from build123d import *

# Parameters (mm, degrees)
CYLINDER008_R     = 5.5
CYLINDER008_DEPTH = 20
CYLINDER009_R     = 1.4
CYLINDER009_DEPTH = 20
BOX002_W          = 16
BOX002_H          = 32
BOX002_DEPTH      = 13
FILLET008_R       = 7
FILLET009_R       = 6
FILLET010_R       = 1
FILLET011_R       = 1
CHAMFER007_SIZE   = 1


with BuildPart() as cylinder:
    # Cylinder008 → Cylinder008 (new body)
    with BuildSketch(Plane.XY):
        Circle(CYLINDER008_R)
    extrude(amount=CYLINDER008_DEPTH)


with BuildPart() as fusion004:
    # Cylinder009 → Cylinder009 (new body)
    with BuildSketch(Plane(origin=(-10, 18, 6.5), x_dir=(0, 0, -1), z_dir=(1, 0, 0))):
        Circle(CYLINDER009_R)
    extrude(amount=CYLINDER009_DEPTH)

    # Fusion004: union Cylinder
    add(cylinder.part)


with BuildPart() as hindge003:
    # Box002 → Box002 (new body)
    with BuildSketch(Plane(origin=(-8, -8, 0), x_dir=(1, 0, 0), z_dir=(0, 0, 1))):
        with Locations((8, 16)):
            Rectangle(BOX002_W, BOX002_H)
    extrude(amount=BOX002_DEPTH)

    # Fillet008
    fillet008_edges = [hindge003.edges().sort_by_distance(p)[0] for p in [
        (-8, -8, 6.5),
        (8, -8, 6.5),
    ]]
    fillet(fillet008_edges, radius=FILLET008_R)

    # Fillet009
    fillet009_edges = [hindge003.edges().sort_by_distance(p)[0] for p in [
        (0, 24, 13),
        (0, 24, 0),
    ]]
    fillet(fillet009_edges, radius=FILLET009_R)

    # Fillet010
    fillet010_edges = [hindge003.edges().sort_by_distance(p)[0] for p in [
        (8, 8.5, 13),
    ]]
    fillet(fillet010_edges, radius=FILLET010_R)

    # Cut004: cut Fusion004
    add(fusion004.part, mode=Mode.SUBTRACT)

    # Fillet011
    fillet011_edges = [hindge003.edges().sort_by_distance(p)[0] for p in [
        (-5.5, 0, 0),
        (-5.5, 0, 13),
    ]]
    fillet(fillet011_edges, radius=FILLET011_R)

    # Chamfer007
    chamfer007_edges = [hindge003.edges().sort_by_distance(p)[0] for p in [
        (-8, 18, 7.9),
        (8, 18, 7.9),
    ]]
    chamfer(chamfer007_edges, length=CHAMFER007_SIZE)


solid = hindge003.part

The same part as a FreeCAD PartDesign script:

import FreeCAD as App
import Part
import Sketcher

V = App.Vector


def edges_at(feature, points):
    """Names of the edges that pass closest to the given points."""
    edges = feature.Shape.Edges
    near = lambda p: min(range(len(edges)), key=lambda i: edges[i].distToShape(Part.Vertex(*p))[0])
    return sorted({f"Edge{near(p) + 1}" for p in points})

doc = App.newDocument("Part")
body = doc.addObject("PartDesign::Body", "Body")

sketch1 = doc.addObject("Sketcher::SketchObject", "Sketch")
body.addObject(sketch1)
sketch1.AttachmentSupport = (doc.XY_Plane, [""])
sketch1.MapMode = "FlatFace"
sketch1.addGeometry(Part.Circle(V(0, 0, 0), V(0, 0, 1), 6), False)
sketch1.addConstraint([
    Sketcher.Constraint("Coincident", 0, 3, -1, 1),
    Sketcher.Constraint("Diameter", 0, 11.0),
])
pad1 = doc.addObject("PartDesign::Pad", "Pad")
body.addObject(pad1)
pad1.Profile = sketch1
pad1.Length = 20
body2 = doc.addObject("PartDesign::Body", "Body001")
body2.AllowCompound = True

sketch2 = doc.addObject("Sketcher::SketchObject", "Sketch001")
body2.addObject(sketch2)
sketch2.AttachmentSupport = (doc.getObject("YZ_Plane001"), [""])
sketch2.MapMode = "FlatFace"
sketch2.AttachmentOffset = App.Placement(V(0, 0, -10), App.Rotation())
sketch2.addGeometry(Part.Circle(V(18, 6.5, 0), V(0, 0, 1), 1.4), False)
sketch2.addConstraint([
    Sketcher.Constraint("Diameter", 0, 2.8),
    Sketcher.Constraint("DistanceX", -1, 1, 0, 3, 18.0),
    Sketcher.Constraint("DistanceY", -1, 1, 0, 3, 6.5),
])
pad2 = doc.addObject("PartDesign::Pad", "Pad001")
body2.addObject(pad2)
pad2.Profile = sketch2
pad2.Length = 20
doc.recompute()

boolean = doc.addObject("PartDesign::Boolean", "Boolean")
body2.addObject(boolean)
boolean.Type = "Fuse"
boolean.addObjects([body])
body3 = doc.addObject("PartDesign::Body", "Body002")

sketch3 = doc.addObject("Sketcher::SketchObject", "Sketch002")
body3.addObject(sketch3)
sketch3.AttachmentSupport = (doc.getObject("XY_Plane002"), [""])
sketch3.MapMode = "FlatFace"
sketch3.addGeometry([
    Part.LineSegment(V(-8, 24, 0), V(-8, -8, 0)),
    Part.LineSegment(V(-8, -8, 0), V(8, -8, 0)),
    Part.LineSegment(V(8, -8, 0), V(8, 24, 0)),
    Part.LineSegment(V(8, 24, 0), V(-8, 24, 0)),
], False)
sketch3.addConstraint([
    Sketcher.Constraint("Coincident", 0, 2, 1, 1),
    Sketcher.Constraint("Coincident", 1, 2, 2, 1),
    Sketcher.Constraint("Coincident", 2, 2, 3, 1),
    Sketcher.Constraint("Coincident", 3, 2, 0, 1),
    Sketcher.Constraint("Vertical", 0),
    Sketcher.Constraint("Horizontal", 1),
    Sketcher.Constraint("Vertical", 2),
    Sketcher.Constraint("Horizontal", 3),
    Sketcher.Constraint("DistanceX", 1, 1, 1, 2, 16.0),
    Sketcher.Constraint("DistanceY", 0, 2, 0, 1, 32.0),
    Sketcher.Constraint("DistanceX", 0, 2, -1, 1, 8.0),
    Sketcher.Constraint("DistanceY", 0, 2, -1, 1, 8.0),
])
pad3 = doc.addObject("PartDesign::Pad", "Pad002")
body3.addObject(pad3)
pad3.Profile = sketch3
pad3.Length = 13
doc.recompute()

fillet = doc.addObject("PartDesign::Fillet", "Fillet")
body3.addObject(fillet)
fillet.Base = (pad3, edges_at(pad3, [(-8, -8, 6.5), (8, -8, 6.5)]))
fillet.Radius = 7
doc.recompute()

fillet2 = doc.addObject("PartDesign::Fillet", "Fillet001")
body3.addObject(fillet2)
fillet2.Base = (fillet, edges_at(fillet, [(0, 24, 13), (0, 24, 0)]))
fillet2.Radius = 6
doc.recompute()

fillet3 = doc.addObject("PartDesign::Fillet", "Fillet002")
body3.addObject(fillet3)
fillet3.Base = (fillet2, edges_at(fillet2, [(8, 8.5, 13)]))
fillet3.Radius = 1
doc.recompute()

boolean2 = doc.addObject("PartDesign::Boolean", "Boolean001")
body3.addObject(boolean2)
boolean2.Type = "Cut"
boolean2.addObjects([body2])
doc.recompute()

fillet4 = doc.addObject("PartDesign::Fillet", "Fillet003")
body3.addObject(fillet4)
fillet4.Base = (boolean2, edges_at(boolean2, [(-5.5, 0, 0), (-5.5, 0, 13)]))
fillet4.Radius = 1
doc.recompute()

chamfer = doc.addObject("PartDesign::Chamfer", "Chamfer")
body3.addObject(chamfer)
chamfer.Base = (fillet4, edges_at(fillet4, [(-8, 18, 7.9), (8, 18, 7.9)]))
chamfer.Size = 1

doc.recompute()
